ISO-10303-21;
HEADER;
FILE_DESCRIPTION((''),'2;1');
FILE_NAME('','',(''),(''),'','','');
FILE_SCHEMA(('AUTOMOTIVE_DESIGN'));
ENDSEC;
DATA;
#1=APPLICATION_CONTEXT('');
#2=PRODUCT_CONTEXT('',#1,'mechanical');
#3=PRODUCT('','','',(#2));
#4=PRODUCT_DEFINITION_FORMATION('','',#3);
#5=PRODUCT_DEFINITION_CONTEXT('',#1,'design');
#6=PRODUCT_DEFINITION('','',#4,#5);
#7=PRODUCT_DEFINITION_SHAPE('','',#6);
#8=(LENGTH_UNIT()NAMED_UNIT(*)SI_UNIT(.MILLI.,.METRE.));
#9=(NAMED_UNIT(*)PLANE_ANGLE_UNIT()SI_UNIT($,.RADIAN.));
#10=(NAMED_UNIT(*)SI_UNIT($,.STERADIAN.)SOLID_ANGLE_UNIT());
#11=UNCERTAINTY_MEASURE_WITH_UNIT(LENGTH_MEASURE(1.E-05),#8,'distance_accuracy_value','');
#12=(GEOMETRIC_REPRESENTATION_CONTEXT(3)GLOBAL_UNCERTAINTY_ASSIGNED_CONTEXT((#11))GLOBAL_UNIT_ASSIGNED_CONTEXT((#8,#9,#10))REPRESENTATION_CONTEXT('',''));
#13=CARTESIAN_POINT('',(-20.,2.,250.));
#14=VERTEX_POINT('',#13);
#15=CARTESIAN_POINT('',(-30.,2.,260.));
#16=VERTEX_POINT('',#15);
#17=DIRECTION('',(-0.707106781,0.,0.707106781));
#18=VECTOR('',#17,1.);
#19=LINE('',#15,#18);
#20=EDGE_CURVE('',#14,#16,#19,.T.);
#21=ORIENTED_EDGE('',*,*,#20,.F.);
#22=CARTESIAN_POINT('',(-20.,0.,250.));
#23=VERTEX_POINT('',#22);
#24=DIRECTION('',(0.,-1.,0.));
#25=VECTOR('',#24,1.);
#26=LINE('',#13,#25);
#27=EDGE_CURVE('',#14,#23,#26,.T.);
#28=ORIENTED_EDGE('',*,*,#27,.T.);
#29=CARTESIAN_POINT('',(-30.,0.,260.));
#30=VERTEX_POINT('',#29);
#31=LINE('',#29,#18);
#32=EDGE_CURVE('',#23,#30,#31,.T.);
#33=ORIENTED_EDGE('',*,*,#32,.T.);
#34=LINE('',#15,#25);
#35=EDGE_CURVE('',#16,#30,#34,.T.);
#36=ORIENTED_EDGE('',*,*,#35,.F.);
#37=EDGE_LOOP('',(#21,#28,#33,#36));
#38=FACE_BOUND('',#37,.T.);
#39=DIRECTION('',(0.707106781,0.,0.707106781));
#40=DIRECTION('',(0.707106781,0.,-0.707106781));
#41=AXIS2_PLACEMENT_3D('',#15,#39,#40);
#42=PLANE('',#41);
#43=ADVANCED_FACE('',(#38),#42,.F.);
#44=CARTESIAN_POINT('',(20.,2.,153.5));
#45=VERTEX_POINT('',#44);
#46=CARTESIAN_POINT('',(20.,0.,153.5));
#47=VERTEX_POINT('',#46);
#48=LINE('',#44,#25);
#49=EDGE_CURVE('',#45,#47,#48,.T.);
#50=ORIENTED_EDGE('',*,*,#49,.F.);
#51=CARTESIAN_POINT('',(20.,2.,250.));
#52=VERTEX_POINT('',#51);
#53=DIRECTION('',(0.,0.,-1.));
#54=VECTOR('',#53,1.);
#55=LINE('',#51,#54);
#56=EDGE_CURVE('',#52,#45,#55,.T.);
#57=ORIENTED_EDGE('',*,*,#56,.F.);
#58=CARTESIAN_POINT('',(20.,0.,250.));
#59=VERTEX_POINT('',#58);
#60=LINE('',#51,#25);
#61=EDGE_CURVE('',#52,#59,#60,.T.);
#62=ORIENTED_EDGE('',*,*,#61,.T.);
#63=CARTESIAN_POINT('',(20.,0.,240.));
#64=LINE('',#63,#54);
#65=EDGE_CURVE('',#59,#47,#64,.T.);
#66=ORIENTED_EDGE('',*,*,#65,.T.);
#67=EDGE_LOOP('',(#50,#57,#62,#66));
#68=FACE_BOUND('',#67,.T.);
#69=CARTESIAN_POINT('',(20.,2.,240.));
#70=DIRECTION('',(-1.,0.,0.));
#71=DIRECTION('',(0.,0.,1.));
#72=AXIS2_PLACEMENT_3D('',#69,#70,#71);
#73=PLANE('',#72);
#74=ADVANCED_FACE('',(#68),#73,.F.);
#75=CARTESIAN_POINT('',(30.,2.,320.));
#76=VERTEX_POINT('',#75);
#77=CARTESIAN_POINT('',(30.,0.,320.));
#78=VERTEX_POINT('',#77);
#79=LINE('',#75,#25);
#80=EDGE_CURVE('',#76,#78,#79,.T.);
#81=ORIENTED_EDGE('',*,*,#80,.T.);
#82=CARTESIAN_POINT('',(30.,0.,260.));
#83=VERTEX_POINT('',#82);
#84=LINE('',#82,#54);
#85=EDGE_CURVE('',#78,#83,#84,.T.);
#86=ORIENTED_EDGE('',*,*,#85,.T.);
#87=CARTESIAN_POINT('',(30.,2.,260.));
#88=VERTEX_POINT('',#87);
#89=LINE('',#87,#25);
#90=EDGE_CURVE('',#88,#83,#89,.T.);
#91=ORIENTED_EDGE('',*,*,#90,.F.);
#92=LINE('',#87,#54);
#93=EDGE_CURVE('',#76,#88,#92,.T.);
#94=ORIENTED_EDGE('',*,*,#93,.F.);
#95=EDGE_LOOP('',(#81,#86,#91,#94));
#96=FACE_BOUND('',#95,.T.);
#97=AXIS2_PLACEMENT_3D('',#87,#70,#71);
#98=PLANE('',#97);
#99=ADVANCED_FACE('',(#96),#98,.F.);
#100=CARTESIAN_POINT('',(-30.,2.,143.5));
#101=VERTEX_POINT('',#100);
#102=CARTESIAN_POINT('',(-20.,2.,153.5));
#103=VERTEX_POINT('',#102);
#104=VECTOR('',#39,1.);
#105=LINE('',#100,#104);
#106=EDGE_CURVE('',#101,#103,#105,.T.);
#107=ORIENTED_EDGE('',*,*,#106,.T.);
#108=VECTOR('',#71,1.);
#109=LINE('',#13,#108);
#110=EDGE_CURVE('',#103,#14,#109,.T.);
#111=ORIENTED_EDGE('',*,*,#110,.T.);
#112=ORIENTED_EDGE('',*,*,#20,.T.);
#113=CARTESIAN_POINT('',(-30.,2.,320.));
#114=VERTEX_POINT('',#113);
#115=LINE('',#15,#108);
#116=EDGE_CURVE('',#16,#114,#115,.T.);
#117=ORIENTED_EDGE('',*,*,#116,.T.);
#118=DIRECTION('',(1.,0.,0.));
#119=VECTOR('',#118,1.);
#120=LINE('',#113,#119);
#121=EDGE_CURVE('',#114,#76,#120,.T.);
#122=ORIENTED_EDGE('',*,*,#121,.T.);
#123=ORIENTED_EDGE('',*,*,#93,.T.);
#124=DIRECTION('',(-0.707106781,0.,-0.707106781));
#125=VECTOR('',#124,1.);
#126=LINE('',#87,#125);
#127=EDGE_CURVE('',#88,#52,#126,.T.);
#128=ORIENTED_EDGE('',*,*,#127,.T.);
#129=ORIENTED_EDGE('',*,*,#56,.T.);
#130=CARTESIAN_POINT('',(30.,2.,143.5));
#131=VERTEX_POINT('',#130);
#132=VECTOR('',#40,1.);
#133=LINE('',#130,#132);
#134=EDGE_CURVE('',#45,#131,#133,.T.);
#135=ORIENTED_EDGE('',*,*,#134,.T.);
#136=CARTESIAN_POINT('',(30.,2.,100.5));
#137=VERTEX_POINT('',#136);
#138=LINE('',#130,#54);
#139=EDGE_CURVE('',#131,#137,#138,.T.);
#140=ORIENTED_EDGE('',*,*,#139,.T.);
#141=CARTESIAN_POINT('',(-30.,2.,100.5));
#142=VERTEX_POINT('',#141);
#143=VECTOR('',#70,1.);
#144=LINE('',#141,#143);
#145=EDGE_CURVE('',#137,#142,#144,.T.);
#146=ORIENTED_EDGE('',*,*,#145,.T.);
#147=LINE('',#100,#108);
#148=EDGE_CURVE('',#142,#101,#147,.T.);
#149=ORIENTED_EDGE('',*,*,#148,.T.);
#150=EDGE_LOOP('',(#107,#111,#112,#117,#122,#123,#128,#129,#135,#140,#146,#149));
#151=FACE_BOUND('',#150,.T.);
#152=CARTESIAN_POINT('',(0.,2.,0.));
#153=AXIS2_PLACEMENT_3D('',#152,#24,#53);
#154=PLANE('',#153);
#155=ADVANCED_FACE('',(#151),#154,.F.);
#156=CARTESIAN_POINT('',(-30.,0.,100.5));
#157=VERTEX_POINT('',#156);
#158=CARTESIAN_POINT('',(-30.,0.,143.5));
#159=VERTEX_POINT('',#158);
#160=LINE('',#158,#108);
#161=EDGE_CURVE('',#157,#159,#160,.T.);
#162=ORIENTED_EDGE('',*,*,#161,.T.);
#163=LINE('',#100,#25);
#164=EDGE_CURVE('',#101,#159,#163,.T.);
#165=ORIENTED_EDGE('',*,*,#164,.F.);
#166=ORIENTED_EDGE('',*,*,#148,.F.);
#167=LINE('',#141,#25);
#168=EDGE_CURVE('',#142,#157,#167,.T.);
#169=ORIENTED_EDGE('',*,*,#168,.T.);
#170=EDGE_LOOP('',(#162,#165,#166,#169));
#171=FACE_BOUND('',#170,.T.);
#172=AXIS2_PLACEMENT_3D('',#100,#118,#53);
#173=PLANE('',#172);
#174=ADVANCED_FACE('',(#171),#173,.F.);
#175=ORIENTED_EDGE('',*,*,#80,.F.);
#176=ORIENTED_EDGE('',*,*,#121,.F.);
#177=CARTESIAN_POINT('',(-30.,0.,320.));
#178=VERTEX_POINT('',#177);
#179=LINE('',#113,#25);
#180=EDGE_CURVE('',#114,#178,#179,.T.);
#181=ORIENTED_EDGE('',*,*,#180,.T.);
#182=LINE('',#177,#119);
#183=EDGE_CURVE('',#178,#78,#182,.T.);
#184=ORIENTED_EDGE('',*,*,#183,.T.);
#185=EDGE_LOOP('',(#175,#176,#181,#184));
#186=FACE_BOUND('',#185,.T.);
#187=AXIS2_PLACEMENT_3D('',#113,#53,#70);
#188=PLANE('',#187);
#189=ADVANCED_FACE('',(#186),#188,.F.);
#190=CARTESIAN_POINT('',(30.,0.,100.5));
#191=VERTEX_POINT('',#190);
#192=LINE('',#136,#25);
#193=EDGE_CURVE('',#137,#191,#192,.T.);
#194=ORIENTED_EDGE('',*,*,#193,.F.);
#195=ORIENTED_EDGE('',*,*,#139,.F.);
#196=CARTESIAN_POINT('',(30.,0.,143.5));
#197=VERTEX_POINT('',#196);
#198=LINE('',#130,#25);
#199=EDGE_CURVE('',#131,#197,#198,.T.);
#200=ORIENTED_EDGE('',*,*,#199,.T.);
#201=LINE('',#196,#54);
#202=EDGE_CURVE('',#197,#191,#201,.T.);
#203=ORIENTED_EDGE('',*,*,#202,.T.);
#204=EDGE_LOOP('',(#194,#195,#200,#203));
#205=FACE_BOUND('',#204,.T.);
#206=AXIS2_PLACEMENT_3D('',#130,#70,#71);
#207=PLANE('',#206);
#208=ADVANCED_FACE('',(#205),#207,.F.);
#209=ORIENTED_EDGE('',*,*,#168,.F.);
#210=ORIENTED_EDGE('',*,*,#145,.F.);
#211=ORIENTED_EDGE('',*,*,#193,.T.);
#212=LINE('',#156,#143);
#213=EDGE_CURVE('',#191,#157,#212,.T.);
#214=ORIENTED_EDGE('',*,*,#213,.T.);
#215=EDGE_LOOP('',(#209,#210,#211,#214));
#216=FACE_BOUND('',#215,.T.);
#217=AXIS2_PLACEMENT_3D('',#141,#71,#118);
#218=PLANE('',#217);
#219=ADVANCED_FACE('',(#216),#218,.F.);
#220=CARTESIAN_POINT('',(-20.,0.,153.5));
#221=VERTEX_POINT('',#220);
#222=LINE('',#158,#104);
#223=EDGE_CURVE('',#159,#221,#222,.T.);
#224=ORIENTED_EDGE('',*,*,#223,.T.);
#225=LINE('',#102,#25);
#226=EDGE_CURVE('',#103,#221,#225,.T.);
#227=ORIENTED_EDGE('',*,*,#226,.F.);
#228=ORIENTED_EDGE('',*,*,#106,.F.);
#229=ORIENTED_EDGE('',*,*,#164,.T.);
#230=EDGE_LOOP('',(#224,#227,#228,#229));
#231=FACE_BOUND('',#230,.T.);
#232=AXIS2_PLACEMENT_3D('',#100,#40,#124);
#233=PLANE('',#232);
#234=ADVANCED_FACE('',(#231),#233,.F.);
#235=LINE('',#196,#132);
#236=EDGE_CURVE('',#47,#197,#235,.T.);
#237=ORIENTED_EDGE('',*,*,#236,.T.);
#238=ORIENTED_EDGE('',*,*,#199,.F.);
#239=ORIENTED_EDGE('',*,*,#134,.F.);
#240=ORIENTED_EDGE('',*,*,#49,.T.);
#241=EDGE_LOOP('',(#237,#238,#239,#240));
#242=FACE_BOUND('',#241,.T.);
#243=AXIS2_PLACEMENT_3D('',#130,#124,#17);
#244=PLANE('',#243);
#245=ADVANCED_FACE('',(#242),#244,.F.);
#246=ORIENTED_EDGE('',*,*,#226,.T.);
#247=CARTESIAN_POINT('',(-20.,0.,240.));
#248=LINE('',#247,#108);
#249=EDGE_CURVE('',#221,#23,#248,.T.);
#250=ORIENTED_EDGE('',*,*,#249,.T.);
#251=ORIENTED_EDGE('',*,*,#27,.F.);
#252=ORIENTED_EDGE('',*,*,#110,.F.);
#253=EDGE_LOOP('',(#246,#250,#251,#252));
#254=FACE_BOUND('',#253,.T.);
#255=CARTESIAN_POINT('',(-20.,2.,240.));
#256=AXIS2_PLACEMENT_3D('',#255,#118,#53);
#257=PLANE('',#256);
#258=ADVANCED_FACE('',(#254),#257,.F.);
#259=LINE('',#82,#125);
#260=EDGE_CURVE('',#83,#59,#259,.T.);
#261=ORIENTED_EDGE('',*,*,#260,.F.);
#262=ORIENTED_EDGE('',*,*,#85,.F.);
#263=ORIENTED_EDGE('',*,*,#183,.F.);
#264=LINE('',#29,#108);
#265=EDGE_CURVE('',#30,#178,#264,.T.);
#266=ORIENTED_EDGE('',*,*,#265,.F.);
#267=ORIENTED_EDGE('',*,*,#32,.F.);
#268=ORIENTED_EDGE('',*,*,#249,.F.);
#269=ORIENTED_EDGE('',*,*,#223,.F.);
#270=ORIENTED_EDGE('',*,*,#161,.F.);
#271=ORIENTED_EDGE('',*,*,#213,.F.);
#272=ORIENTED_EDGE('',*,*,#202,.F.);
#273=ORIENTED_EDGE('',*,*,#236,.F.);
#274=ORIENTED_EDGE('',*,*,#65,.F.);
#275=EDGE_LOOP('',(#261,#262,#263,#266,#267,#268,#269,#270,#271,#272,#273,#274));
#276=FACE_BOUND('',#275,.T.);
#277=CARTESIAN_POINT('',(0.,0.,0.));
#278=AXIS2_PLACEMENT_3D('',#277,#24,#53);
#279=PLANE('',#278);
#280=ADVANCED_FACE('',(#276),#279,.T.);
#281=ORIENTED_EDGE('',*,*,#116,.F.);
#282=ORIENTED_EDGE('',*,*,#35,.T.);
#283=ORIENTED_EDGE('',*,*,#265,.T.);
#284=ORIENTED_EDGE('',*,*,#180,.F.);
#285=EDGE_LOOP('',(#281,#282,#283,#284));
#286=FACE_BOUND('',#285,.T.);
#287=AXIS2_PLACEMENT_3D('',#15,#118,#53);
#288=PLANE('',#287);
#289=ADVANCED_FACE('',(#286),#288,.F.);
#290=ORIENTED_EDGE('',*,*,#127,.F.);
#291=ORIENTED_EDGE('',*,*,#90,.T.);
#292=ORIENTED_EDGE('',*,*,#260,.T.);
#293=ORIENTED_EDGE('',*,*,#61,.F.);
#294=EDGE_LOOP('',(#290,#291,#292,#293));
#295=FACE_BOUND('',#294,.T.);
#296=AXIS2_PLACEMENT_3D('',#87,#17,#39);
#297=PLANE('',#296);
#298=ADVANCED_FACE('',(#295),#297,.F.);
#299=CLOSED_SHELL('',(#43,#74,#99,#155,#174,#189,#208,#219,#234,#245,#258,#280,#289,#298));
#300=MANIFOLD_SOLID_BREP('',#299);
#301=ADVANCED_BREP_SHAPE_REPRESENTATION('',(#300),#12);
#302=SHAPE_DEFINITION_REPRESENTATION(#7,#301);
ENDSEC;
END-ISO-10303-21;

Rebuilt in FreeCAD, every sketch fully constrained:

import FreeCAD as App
import Part
import Sketcher

V = App.Vector
Q = App.Units.Quantity

doc = App.newDocument("Part")
body = doc.addObject("PartDesign::Body", "Body")

sketch1 = body.newObject("Sketcher::SketchObject", "Sketch")
sketch1.AttachmentSupport = (doc.getObject("XZ_Plane"), [""])
sketch1.MapMode = "FlatFace"
sketch1.addGeometry(Part.LineSegment(V(-30, 260, 0), V(-30, 320, 0)), False)
sketch1.addGeometry(Part.LineSegment(V(-30, 320, 0), V(30, 320, 0)), False)
sketch1.addGeometry(Part.LineSegment(V(30, 320, 0), V(30, 260, 0)), False)
sketch1.addGeometry(Part.LineSegment(V(30, 260, 0), V(20, 250, 0)), False)
sketch1.addGeometry(Part.LineSegment(V(20, 250, 0), V(20, 153.5, 0)), False)
sketch1.addGeometry(Part.LineSegment(V(20, 153.5, 0), V(30, 143.5, 0)), False)
sketch1.addGeometry(Part.LineSegment(V(30, 143.5, 0), V(30, 100.5, 0)), False)
sketch1.addGeometry(Part.LineSegment(V(30, 100.5, 0), V(-30, 100.5, 0)), False)
sketch1.addGeometry(Part.LineSegment(V(-30, 100.5, 0), V(-30, 143.5, 0)), False)
sketch1.addGeometry(Part.LineSegment(V(-30, 143.5, 0), V(-20, 153.5, 0)), False)
sketch1.addGeometry(Part.LineSegment(V(-20, 153.5, 0), V(-20, 250, 0)), False)
sketch1.addGeometry(Part.LineSegment(V(-20, 250, 0), V(-30, 260, 0)), False)
sketch1.addConstraint(Sketcher.Constraint("Coincident", 0, 2, 1, 1))
sketch1.addConstraint(Sketcher.Constraint("Coincident", 1, 2, 2, 1))
sketch1.addConstraint(Sketcher.Constraint("Coincident", 2, 2, 3, 1))
sketch1.addConstraint(Sketcher.Constraint("Coincident", 3, 2, 4, 1))
sketch1.addConstraint(Sketcher.Constraint("Coincident", 4, 2, 5, 1))
sketch1.addConstraint(Sketcher.Constraint("Coincident", 5, 2, 6, 1))
sketch1.addConstraint(Sketcher.Constraint("Coincident", 6, 2, 7, 1))
sketch1.addConstraint(Sketcher.Constraint("Coincident", 7, 2, 8, 1))
sketch1.addConstraint(Sketcher.Constraint("Coincident", 8, 2, 9, 1))
sketch1.addConstraint(Sketcher.Constraint("Coincident", 9, 2, 10, 1))
sketch1.addConstraint(Sketcher.Constraint("Coincident", 10, 2, 11, 1))
sketch1.addConstraint(Sketcher.Constraint("Coincident", 11, 2, 0, 1))
sketch1.addConstraint(Sketcher.Constraint("Vertical", 0))
sketch1.addConstraint(Sketcher.Constraint("Horizontal", 1))
sketch1.addConstraint(Sketcher.Constraint("Vertical", 2))
sketch1.addConstraint(Sketcher.Constraint("Vertical", 4))
sketch1.addConstraint(Sketcher.Constraint("Vertical", 6))
sketch1.addConstraint(Sketcher.Constraint("Horizontal", 7))
sketch1.addConstraint(Sketcher.Constraint("Vertical", 8))
sketch1.addConstraint(Sketcher.Constraint("Vertical", 10))
sketch1.addConstraint(Sketcher.Constraint("Symmetric", 5, 2, 8, 2, -2))
sketch1.addConstraint(Sketcher.Constraint("Symmetric", 4, 2, 9, 2, -2))
sketch1.addConstraint(Sketcher.Constraint("Symmetric", 2, 2, 11, 2, -2))
sketch1.addConstraint(Sketcher.Constraint("Perpendicular", 3, 5))
sketch1.addConstraint(Sketcher.Constraint("Perpendicular", 5, 9))
sketch1.addConstraint(Sketcher.Constraint("Perpendicular", 9, 11))
sketch1.addConstraint(Sketcher.Constraint("Vertical", 2, 2, 5, 2))
sketch1.addConstraint(Sketcher.Constraint("Equal", 7, 0))
sketch1.addConstraint(Sketcher.Constraint("DistanceX", 1, 1, 1, 2, Q("60 mm")))
sketch1.addConstraint(Sketcher.Constraint("DistanceY", 6, 2, 6, 1, Q("43 mm")))
sketch1.addConstraint(Sketcher.Constraint("DistanceY", 4, 2, 4, 1, Q("96.5 mm")))
sketch1.addConstraint(Sketcher.Constraint("DistanceY", -1, 1, 0, 2, Q("320 mm")))
sketch1.addConstraint(Sketcher.Constraint("DistanceX", -1, 1, 3, 2, Q("20 mm")))
pad1 = body.newObject("PartDesign::Pad", "Pad")
pad1.Profile = sketch1
pad1.Length = 2
pad1.Reversed = True

doc.recompute()
